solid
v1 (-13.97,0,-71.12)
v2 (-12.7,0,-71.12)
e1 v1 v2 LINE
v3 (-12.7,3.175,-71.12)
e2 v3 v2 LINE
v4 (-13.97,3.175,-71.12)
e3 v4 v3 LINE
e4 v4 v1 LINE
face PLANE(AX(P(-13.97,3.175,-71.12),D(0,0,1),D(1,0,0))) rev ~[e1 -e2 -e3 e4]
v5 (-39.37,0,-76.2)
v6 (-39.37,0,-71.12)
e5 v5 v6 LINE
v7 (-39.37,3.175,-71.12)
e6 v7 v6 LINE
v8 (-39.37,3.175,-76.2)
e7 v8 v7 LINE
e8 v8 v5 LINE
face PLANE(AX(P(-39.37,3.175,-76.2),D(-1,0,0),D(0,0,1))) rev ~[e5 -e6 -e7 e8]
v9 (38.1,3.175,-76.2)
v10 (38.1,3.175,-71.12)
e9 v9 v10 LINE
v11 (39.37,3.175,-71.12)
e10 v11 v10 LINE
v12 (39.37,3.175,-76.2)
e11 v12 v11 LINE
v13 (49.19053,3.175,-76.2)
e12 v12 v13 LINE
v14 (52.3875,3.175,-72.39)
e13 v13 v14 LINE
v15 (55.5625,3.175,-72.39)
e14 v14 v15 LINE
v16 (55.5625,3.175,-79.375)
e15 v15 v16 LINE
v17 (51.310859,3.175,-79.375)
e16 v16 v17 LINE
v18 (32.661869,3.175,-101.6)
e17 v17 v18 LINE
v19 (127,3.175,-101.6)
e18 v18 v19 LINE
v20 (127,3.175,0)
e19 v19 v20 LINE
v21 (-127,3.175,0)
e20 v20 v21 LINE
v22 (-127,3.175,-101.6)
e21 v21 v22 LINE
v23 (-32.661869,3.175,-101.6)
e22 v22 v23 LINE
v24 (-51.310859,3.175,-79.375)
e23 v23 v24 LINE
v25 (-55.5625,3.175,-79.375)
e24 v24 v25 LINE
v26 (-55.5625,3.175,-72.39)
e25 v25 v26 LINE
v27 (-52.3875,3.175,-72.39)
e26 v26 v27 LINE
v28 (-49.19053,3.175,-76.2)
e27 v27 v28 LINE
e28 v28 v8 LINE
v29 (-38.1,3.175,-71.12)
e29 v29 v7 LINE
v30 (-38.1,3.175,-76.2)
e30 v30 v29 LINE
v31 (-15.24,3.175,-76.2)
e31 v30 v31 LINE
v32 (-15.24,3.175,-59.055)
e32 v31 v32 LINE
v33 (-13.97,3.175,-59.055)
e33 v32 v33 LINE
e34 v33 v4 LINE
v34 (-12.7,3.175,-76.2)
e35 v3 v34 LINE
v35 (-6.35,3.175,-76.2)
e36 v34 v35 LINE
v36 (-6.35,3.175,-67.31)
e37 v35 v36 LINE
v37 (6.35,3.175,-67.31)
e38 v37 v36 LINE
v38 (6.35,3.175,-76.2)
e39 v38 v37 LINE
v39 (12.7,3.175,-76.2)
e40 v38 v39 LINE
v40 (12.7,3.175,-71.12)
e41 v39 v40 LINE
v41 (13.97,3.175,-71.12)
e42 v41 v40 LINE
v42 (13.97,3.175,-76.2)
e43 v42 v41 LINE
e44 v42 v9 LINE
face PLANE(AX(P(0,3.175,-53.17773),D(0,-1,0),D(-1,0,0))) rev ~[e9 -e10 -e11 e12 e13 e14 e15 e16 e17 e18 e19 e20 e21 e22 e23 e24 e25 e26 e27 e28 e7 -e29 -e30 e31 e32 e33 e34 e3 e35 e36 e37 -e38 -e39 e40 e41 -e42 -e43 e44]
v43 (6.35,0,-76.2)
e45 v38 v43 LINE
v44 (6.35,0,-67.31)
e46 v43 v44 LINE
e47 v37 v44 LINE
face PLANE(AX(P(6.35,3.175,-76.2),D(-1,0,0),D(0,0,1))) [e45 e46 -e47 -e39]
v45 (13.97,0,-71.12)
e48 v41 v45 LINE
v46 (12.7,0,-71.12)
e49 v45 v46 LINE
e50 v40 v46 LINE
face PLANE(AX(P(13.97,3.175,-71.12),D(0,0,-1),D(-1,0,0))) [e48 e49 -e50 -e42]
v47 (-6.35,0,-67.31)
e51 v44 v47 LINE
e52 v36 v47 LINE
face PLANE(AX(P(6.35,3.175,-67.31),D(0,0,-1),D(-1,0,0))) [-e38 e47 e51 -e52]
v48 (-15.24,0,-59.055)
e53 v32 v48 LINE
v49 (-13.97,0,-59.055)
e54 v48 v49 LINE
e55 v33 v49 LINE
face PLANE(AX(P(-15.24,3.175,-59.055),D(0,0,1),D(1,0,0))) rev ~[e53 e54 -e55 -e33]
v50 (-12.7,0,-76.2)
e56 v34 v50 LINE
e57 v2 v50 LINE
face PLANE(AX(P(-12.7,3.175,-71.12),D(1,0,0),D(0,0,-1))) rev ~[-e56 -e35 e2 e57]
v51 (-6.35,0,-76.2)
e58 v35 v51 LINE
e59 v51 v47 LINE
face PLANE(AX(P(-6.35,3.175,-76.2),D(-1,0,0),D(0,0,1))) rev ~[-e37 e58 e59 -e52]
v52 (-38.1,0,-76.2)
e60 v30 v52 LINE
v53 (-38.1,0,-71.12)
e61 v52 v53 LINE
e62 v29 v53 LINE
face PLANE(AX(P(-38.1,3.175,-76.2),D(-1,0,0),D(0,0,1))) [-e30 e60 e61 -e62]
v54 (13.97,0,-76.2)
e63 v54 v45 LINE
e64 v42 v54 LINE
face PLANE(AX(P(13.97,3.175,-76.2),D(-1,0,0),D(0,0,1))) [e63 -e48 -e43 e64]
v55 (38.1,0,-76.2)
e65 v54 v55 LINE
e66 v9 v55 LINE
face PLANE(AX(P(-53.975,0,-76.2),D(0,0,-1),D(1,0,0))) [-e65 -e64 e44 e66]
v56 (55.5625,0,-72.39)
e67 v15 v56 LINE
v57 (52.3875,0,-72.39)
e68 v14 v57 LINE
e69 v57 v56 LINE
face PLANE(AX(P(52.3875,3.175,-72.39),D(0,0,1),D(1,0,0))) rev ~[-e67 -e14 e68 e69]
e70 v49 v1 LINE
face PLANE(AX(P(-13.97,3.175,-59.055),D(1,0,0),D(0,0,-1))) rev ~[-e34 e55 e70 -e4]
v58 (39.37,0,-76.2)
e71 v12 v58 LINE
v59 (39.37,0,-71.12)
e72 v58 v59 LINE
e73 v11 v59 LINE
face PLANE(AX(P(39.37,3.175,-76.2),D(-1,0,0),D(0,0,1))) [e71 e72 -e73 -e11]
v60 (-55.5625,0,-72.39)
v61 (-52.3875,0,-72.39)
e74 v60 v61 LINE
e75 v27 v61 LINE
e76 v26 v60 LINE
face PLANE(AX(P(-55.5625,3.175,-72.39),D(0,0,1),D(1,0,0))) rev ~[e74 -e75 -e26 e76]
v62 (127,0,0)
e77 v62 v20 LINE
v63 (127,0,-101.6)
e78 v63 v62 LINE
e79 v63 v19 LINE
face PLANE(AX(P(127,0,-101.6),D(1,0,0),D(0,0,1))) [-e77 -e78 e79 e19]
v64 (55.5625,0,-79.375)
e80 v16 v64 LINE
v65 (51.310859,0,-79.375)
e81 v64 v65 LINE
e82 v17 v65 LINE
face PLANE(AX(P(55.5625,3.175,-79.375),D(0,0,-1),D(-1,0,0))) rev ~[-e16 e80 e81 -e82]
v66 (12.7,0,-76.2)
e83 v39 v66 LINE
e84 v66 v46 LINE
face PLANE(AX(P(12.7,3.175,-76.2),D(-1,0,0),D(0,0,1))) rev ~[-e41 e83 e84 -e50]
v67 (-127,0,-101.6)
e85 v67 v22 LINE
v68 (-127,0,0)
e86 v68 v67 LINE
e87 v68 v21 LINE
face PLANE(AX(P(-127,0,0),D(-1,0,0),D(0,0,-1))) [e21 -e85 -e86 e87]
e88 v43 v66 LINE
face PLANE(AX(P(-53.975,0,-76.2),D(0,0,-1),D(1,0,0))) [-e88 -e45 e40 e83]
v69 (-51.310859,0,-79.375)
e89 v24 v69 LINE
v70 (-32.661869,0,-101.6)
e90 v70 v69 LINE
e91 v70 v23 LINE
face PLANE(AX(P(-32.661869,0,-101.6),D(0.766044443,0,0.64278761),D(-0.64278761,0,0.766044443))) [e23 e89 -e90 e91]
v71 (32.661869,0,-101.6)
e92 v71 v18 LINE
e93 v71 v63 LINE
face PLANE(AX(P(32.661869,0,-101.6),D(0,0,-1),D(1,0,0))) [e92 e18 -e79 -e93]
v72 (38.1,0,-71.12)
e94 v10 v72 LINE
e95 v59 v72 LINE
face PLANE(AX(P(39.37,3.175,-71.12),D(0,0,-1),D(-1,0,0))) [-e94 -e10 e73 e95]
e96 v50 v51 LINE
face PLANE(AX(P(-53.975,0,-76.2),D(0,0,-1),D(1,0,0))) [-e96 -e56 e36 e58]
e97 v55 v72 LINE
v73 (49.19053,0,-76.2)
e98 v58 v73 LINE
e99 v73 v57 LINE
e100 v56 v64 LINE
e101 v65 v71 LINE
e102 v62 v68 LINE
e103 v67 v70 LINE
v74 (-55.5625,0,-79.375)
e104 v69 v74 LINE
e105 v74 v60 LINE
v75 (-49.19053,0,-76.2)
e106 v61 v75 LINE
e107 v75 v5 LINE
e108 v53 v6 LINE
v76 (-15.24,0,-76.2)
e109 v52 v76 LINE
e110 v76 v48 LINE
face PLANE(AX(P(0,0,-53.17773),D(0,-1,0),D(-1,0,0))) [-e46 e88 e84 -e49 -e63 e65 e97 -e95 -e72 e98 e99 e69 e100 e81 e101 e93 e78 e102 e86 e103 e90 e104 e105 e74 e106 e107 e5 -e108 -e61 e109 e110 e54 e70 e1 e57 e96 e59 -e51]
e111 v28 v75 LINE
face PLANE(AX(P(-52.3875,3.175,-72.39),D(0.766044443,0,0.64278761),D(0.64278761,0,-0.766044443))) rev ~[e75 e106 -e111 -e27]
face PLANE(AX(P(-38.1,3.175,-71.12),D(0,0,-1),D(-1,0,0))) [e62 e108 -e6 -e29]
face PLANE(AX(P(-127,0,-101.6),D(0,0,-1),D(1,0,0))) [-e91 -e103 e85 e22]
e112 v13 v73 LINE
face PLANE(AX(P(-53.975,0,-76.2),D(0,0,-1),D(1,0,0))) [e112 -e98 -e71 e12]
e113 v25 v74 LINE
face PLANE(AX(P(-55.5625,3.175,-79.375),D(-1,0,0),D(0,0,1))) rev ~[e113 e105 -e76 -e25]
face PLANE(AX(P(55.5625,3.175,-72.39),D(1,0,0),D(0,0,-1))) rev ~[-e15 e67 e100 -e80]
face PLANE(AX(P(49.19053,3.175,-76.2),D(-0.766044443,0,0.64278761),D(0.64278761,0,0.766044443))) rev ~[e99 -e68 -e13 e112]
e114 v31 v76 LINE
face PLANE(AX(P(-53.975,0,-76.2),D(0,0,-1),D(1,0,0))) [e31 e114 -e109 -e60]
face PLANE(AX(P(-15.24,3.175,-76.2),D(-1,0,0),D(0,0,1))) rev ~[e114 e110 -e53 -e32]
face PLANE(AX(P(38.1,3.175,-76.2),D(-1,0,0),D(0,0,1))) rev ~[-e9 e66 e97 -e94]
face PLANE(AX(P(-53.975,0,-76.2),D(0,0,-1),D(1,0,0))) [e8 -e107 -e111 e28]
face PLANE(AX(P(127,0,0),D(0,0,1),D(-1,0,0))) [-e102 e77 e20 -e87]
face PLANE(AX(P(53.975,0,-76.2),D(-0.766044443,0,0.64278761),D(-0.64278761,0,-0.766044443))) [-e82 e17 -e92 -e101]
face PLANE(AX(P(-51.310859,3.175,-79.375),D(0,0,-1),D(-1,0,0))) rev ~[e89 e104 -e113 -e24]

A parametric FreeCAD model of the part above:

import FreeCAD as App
import Part
import Sketcher

V = App.Vector
Q = App.Units.Quantity


def add_polygon(sketch, points):
    """Adds a closed chain of lines whose ends are joined by coincident constraints."""
    first, n = sketch.GeometryCount, len(points)
    for a, b in zip(points, points[1:] + points[:1]):
        sketch.addGeometry(Part.LineSegment(App.Vector(*a, 0), App.Vector(*b, 0)), False)
    for i in range(n):
        sketch.addConstraint(Sketcher.Constraint("Coincident", first + i, 2, first + (i + 1) % n, 1))

doc = App.newDocument("Part")
body = doc.addObject("PartDesign::Body", "Body")

sketch1 = body.newObject("Sketcher::SketchObject", "Sketch")
sketch1.AttachmentSupport = (doc.getObject("XZ_Plane"), [""])
sketch1.MapMode = "FlatFace"
add_polygon(sketch1, [(127, -102), (33, -102), (54, -76), (-54, -76), (-33, -102), (-127, -102), (-127, 0), (127, 0)])
sketch1.addConstraint(Sketcher.Constraint("Horizontal", 0))
sketch1.addConstraint(Sketcher.Constraint("Horizontal", 2))
sketch1.addConstraint(Sketcher.Constraint("Horizontal", 4))
sketch1.addConstraint(Sketcher.Constraint("Vertical", 5))
sketch1.addConstraint(Sketcher.Constraint("Horizontal", 6))
sketch1.addConstraint(Sketcher.Constraint("Vertical", 7))
sketch1.addConstraint(Sketcher.Constraint("Symmetric", 5, 2, 6, 2, -1, 1))
sketch1.addConstraint(Sketcher.Constraint("Symmetric", 0, 2, 3, 2, -2))
sketch1.addConstraint(Sketcher.Constraint("Equal", 1, 3))
sketch1.addConstraint(Sketcher.Constraint("DistanceX", 6, 1, 6, 2, Q("10 in")))
sketch1.addConstraint(Sketcher.Constraint("DistanceY", 5, 1, 5, 2, Q("4 in")))
sketch1.addConstraint(Sketcher.Constraint("DistanceY", 1, 2, -1, 1, Q("3 in")))
sketch1.addConstraint(Sketcher.Constraint("Angle", 1, Q("50 deg")))
sketch1.addConstraint(Sketcher.Constraint("DistanceX", 2, 2, 2, 1, Q("4.25 in")))
pad1 = body.newObject("PartDesign::Pad", "Pad")
pad1.Profile = sketch1
pad1.Length = Q("0.125 in")
pad1.Reversed = True

sketch2 = body.newObject("Sketcher::SketchObject", "Sketch001")
sketch2.AttachmentSupport = (doc.getObject("XZ_Plane"), [""])
sketch2.MapMode = "FlatFace"
sketch2.AttachmentOffset = App.Placement(V(0, 0, -0.125 * 25.4), App.Rotation())
add_polygon(sketch2, [(-38.1, -71.1), (-38.1, -76.2), (-39.4, -76.2), (-39.4, -71.1)])
add_polygon(sketch2, [(-52.4, -72.4), (-49.2, -76.2), (-54, -76.2), (-51.3, -79.4), (-55.6, -79.4), (-55.6, -72.4)])
add_polygon(sketch2, [(-12.7, -76.2), (-15.2, -76.2), (-15.2, -59.1), (-14, -59.1), (-14, -71.1), (-12.7, -71.1)])
add_polygon(sketch2, [(6.3, -67.3), (6.3, -76.2), (-6.3, -76.2), (-6.3, -67.3)])
add_polygon(sketch2, [(14, -71.1), (14, -76.2), (12.7, -76.2), (12.7, -71.1)])
add_polygon(sketch2, [(39.4, -71.1), (39.4, -76.2), (38.1, -76.2), (38.1, -71.1)])
add_polygon(sketch2, [(54, -76.2), (49.2, -76.2), (52.4, -72.4), (55.6, -72.4), (55.6, -79.4), (51.3, -79.4)])
sketch2.addConstraint(Sketcher.Constraint("Vertical", 0))
sketch2.addConstraint(Sketcher.Constraint("Horizontal", 1))
sketch2.addConstraint(Sketcher.Constraint("Vertical", 2))
sketch2.addConstraint(Sketcher.Constraint("Horizontal", 3))
sketch2.addConstraint(Sketcher.Constraint("Horizontal", 5))
sketch2.addConstraint(Sketcher.Constraint("Horizontal", 7))
sketch2.addConstraint(Sketcher.Constraint("Vertical", 8))
sketch2.addConstraint(Sketcher.Constraint("Horizontal", 9))
sketch2.addConstraint(Sketcher.Constraint("Horizontal", 10))
sketch2.addConstraint(Sketcher.Constraint("Vertical", 11))
sketch2.addConstraint(Sketcher.Constraint("Horizontal", 12))
sketch2.addConstraint(Sketcher.Constraint("Vertical", 13))
sketch2.addConstraint(Sketcher.Constraint("Horizontal", 14))
sketch2.addConstraint(Sketcher.Constraint("Vertical", 15))
sketch2.addConstraint(Sketcher.Constraint("Vertical", 16))
sketch2.addConstraint(Sketcher.Constraint("Horizontal", 17))
sketch2.addConstraint(Sketcher.Constraint("Vertical", 18))
sketch2.addConstraint(Sketcher.Constraint("Horizontal", 19))
sketch2.addConstraint(Sketcher.Constraint("Vertical", 20))
sketch2.addConstraint(Sketcher.Constraint("Horizontal", 21))
sketch2.addConstraint(Sketcher.Constraint("Vertical", 22))
sketch2.addConstraint(Sketcher.Constraint("Horizontal", 23))
sketch2.addConstraint(Sketcher.Constraint("Vertical", 24))
sketch2.addConstraint(Sketcher.Constraint("Horizontal", 25))
sketch2.addConstraint(Sketcher.Constraint("Vertical", 26))
sketch2.addConstraint(Sketcher.Constraint("Horizontal", 27))
sketch2.addConstraint(Sketcher.Constraint("Horizontal", 28))
sketch2.addConstraint(Sketcher.Constraint("Horizontal", 30))
sketch2.addConstraint(Sketcher.Constraint("Vertical", 31))
sketch2.addConstraint(Sketcher.Constraint("Horizontal", 32))
sketch2.addConstraint(Sketcher.Constraint("Symmetric", 15, 2, 21, 2, -2))
sketch2.addConstraint(Sketcher.Constraint("Symmetric", 13, 2, 23, 2, -2))
sketch2.addConstraint(Sketcher.Constraint("Symmetric", 1, 2, 24, 2, -2))
sketch2.addConstraint(Sketcher.Constraint("Symmetric", 3, 2, 26, 2, -2))
sketch2.addConstraint(Sketcher.Constraint("Symmetric", 4, 2, 28, 2, -2))
sketch2.addConstraint(Sketcher.Constraint("Symmetric", 9, 2, 29, 2, -2))
sketch2.addConstraint(Sketcher.Constraint("Symmetric", 7, 2, 31, 2, -2))
sketch2.addConstraint(Sketcher.Constraint("Parallel", 4, 6))
sketch2.addConstraint(Sketcher.Constraint("Parallel", 29, 33))
sketch2.addConstraint(Sketcher.Constraint("Horizontal", 1, 2, 4, 2))
sketch2.addConstraint(Sketcher.Constraint("Horizontal", 5, 2, 10, 2))
sketch2.addConstraint(Sketcher.Constraint("Horizontal", 3, 2, 13, 2))
sketch2.addConstraint(Sketcher.Constraint("Horizontal", 15, 2, 16, 2))
sketch2.addConstraint(Sketcher.Constraint("Equal", 3, 12))
sketch2.addConstraint(Sketcher.Constraint("Equal", 12, 14))
sketch2.addConstraint(Sketcher.Constraint("Equal", 5, 28))
sketch2.addConstraint(Sketcher.Constraint("DistanceX", 10, 2, 10, 1, Q("0.1 in")))
sketch2.addConstraint(Sketcher.Constraint("DistanceX", 17, 2, 17, 1, Q("0.5 in")))
sketch2.addConstraint(Sketcher.Constraint("DistanceY", 0, 2, 0, 1, Q("0.2 in")))
sketch2.addConstraint(Sketcher.Constraint("DistanceY", 0, 2, -1, 1, Q("3 in")))
sketch2.addConstraint(Sketcher.Constraint("Angle", 4, Q("-50 deg")))
sketch2.addConstraint(Sketcher.Constraint("DistanceX", 2, 2, 12, 2, Q("1 in")))
sketch2.addConstraint(Sketcher.Constraint("DistanceY", 16, 2, 16, 1, Q("0.35 in")))
sketch2.addConstraint(Sketcher.Constraint("DistanceX", 0, 2, -1, 1, Q("1.5 in")))
sketch2.addConstraint(Sketcher.Constraint("DistanceX", 13, 2, 16, 2, Q("0.8 in")))
sketch2.addConstraint(Sketcher.Constraint("DistanceX", 9, 1, 9, 2, Q("0.125 in")))
sketch2.addConstraint(Sketcher.Constraint("DistanceY", 8, 1, 8, 2, Q("0.275 in")))
sketch2.addConstraint(Sketcher.Constraint("DistanceY", 11, 1, 11, 2, Q("0.675 in")))
sketch2.addConstraint(Sketcher.Constraint("DistanceY", 8, 2, -1, 1, Q("2.85 in")))
sketch2.addConstraint(Sketcher.Constraint("DistanceX", 5, 2, -1, 1, Q("2.125 in")))
sketch2.addConstraint(Sketcher.Constraint("DistanceX", 7, 2, -1, 1, Q("2.1875 in")))
pocket1 = body.newObject("PartDesign::Pocket", "Pocket")
pocket1.Profile = sketch2
pocket1.Length = Q("0.125 in")
pocket1.Reversed = True

doc.recompute()
